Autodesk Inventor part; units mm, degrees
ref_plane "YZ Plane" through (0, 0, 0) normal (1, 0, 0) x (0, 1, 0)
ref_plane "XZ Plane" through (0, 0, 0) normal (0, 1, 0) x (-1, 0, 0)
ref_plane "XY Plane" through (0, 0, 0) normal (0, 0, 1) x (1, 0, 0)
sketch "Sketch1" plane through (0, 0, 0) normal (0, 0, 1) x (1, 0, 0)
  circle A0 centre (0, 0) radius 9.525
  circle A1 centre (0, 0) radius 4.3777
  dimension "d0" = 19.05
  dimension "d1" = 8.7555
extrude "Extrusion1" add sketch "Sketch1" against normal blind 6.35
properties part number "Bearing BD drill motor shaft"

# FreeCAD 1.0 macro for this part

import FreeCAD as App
import Part
import Sketcher

V = App.Vector
Q = App.Units.Quantity

doc = App.newDocument("Part")
body = doc.addObject("PartDesign::Body", "Body")

# Sketch on XY plane
sketch1 = body.newObject("Sketcher::SketchObject", "Sketch")
sketch1.AttachmentSupport = (doc.getObject("XY_Plane"), [""])
sketch1.MapMode = "FlatFace"
sketch1.addGeometry(Part.Circle(V(0, 0, 0), V(0, 0, 1), 9.5), False)
sketch1.addGeometry(Part.Circle(V(0, 0, 0), V(0, 0, 1), 4.4), False)
sketch1.addConstraint(Sketcher.Constraint("Coincident", 0, 3, -1, 1))
sketch1.addConstraint(Sketcher.Constraint("Coincident", 1, 3, -1, 1))
sketch1.addConstraint(Sketcher.Constraint("Diameter", 0, Q("0.75 in")))
sketch1.addConstraint(Sketcher.Constraint("Diameter", 1, Q("0.3447 in")))
pad1 = body.newObject("PartDesign::Pad", "Pad")
pad1.Profile = sketch1
pad1.Length = Q("0.25 in")
pad1.Reversed = True

doc.recompute()
